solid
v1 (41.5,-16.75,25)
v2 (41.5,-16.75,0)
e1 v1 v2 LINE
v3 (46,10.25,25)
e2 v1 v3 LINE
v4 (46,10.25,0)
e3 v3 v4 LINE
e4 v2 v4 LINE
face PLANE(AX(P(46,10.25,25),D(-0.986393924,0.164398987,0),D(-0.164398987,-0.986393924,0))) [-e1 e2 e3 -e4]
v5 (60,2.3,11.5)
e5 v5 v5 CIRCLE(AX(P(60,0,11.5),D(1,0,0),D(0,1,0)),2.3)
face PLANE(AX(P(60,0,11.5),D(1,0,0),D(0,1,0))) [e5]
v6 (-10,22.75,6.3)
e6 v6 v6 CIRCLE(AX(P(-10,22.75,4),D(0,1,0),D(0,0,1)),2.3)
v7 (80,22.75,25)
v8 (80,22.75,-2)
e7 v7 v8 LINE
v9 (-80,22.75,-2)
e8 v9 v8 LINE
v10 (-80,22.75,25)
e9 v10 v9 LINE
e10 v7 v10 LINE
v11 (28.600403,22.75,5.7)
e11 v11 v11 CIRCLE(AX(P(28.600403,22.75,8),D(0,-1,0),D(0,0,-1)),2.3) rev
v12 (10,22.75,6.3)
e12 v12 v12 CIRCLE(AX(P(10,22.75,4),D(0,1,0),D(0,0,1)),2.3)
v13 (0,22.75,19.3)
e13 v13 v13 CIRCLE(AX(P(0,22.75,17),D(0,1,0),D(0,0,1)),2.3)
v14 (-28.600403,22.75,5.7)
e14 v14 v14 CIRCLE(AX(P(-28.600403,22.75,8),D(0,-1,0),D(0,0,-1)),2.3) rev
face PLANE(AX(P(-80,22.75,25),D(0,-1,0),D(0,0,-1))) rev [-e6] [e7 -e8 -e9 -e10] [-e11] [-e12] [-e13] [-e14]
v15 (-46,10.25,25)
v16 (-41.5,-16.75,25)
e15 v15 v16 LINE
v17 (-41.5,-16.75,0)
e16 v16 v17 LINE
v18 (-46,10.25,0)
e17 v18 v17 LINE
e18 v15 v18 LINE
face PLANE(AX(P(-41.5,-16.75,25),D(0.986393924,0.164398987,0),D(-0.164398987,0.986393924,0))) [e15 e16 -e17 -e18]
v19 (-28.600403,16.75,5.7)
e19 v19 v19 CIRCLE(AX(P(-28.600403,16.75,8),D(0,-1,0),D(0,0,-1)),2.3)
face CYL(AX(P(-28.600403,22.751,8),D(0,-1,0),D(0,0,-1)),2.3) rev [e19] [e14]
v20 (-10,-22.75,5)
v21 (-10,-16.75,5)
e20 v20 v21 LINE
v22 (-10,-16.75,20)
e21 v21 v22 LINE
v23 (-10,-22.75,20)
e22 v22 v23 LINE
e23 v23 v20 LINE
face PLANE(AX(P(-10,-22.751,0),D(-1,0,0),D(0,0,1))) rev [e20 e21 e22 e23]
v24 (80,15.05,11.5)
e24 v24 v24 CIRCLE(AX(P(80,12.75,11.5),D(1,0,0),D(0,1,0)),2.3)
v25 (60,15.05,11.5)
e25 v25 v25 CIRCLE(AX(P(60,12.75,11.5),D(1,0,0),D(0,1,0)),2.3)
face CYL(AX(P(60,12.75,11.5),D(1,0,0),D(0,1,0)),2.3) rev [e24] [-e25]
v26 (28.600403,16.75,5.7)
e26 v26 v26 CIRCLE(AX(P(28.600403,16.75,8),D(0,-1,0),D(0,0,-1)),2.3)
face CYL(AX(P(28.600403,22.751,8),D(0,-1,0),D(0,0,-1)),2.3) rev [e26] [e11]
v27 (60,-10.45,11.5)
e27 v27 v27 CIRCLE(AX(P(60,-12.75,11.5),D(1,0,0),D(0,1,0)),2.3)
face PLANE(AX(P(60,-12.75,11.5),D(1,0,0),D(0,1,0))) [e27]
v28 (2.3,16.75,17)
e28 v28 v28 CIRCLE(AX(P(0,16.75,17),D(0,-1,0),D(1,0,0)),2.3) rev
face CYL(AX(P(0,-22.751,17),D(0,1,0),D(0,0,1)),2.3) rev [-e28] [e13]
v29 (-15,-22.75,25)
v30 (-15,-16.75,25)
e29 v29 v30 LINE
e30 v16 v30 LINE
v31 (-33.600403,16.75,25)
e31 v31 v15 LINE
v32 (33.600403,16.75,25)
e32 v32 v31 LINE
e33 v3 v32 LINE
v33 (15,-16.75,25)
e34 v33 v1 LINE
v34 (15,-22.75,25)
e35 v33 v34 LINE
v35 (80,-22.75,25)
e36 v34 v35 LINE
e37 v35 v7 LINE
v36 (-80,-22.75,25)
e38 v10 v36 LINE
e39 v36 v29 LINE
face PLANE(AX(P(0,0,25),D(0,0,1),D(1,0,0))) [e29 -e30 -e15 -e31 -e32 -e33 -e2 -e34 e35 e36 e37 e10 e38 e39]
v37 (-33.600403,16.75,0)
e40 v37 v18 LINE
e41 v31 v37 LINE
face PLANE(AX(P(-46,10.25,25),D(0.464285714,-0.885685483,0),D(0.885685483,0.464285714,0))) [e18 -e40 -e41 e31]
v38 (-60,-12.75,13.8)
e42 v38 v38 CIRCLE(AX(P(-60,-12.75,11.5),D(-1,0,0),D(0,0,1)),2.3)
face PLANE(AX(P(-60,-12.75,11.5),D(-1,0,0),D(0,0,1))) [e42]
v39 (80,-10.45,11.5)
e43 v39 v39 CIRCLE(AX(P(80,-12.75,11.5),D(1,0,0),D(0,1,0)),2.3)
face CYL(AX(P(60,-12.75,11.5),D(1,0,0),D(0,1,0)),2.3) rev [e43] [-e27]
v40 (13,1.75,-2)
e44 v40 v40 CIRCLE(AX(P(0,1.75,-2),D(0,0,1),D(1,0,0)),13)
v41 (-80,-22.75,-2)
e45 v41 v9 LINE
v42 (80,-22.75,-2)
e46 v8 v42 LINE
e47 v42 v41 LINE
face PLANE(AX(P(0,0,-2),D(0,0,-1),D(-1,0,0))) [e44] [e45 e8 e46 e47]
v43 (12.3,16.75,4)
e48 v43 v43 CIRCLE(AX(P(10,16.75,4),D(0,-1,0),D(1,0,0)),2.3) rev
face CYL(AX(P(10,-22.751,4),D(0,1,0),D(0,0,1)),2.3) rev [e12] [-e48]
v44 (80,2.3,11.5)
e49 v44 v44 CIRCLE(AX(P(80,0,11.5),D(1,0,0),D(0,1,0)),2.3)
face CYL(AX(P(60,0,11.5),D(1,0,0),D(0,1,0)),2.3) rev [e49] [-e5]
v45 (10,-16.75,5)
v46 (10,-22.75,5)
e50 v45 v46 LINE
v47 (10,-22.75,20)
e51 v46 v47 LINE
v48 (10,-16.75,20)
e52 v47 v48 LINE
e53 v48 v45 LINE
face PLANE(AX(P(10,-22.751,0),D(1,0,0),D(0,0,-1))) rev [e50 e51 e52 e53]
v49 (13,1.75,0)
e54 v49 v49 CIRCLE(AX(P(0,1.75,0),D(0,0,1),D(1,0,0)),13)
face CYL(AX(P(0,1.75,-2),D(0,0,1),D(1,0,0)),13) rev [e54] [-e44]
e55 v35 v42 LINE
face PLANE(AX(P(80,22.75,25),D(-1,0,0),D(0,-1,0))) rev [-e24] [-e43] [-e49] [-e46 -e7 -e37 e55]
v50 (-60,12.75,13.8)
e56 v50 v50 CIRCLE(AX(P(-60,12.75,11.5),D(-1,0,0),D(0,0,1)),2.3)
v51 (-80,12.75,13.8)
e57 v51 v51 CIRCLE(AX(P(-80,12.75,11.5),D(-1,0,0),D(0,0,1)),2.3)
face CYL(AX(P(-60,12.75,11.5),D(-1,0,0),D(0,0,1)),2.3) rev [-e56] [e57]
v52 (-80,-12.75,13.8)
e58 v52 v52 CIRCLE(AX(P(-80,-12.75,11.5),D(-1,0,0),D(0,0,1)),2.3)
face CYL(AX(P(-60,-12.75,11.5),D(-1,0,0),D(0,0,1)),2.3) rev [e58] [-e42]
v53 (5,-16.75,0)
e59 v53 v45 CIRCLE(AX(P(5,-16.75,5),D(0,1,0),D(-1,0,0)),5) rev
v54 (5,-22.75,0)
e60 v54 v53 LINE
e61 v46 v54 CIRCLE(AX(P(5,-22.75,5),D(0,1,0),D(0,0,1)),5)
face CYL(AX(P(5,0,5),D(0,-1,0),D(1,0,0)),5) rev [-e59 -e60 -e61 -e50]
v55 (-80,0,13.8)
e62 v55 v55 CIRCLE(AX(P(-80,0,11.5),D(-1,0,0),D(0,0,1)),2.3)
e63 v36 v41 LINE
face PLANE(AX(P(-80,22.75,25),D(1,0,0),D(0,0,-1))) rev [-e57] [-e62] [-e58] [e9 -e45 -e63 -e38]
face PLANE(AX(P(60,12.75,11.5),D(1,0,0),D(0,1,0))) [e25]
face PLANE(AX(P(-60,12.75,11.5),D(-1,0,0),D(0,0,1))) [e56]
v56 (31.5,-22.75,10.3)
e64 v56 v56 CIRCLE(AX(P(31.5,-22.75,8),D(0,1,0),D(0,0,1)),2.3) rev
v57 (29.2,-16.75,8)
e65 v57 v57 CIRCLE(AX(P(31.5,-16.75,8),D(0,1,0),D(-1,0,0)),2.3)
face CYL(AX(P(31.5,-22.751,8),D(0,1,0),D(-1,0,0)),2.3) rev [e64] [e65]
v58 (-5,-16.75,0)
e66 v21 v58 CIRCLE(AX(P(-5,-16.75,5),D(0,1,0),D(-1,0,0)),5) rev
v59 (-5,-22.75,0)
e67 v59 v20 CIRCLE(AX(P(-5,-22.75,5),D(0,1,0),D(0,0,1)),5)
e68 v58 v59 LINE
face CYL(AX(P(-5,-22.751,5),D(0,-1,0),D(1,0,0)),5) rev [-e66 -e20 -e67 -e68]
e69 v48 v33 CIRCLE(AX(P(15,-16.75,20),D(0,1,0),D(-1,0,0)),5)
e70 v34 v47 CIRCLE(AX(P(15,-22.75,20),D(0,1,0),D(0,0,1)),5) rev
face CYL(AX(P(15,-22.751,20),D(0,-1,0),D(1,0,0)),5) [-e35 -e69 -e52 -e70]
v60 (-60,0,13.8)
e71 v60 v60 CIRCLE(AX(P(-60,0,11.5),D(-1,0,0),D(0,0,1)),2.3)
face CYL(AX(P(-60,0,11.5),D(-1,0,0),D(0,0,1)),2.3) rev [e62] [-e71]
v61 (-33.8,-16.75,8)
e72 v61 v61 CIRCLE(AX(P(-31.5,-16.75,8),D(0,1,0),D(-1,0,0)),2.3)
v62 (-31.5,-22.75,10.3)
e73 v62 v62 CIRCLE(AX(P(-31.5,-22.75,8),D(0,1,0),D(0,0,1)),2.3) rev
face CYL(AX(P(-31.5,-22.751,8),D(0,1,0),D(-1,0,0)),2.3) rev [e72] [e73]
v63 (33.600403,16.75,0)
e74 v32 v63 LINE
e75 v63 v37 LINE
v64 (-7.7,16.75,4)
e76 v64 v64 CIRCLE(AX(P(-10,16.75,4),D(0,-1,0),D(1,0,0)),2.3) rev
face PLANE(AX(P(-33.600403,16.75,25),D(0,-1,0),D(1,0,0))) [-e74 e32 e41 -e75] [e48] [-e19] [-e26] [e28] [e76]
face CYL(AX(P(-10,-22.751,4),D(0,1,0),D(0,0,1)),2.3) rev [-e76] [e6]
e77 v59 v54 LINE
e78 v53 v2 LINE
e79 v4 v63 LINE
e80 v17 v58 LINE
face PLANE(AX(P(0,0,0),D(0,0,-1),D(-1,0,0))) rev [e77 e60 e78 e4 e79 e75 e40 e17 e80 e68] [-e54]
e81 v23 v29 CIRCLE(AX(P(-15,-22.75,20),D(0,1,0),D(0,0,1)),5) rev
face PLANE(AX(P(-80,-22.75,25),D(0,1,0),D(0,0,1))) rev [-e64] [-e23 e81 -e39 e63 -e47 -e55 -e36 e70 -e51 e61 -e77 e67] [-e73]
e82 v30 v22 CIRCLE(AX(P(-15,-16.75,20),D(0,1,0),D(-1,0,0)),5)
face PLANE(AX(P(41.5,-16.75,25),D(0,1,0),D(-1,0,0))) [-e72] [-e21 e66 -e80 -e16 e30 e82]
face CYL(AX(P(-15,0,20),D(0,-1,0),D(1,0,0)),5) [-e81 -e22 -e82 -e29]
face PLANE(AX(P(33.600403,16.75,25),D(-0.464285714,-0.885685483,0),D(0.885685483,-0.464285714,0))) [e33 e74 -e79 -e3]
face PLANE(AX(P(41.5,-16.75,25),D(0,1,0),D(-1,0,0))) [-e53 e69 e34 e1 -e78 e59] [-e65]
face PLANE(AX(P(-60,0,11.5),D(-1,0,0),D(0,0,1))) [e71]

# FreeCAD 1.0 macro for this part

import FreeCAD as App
import Part
import Sketcher
Q = App.Units.Quantity


def edges_at(feature, points):
    """Names of the edges that pass closest to the given points."""
    edges = feature.Shape.Edges
    near = lambda p: min(range(len(edges)), key=lambda i: edges[i].distToShape(Part.Vertex(*p))[0])
    return sorted({f"Edge{near(p) + 1}" for p in points})


def add_polygon(sketch, points):
    """Adds a closed chain of lines whose ends are joined by coincident constraints."""
    first, n = sketch.GeometryCount, len(points)
    for a, b in zip(points, points[1:] + points[:1]):
        sketch.addGeometry(Part.LineSegment(App.Vector(*a, 0), App.Vector(*b, 0)), False)
    for i in range(n):
        sketch.addConstraint(Sketcher.Constraint("Coincident", first + i, 2, first + (i + 1) % n, 1))

doc = App.newDocument("Part")
body = doc.addObject("PartDesign::Body", "Body")

# Sketch on XY plane
sketch1 = body.newObject("Sketcher::SketchObject", "Sketch")
sketch1.AttachmentSupport = (doc.getObject("XY_Plane"), [""])
sketch1.MapMode = "FlatFace"
add_polygon(sketch1, [(-80, 23), (-80, -23), (80, -23), (80, 23)])  # lines 0-3
add_polygon(sketch1, [(-46, 10), (-34, 17), (34, 17), (46, 10), (42, -17), (-42, -17)])  # lines 4-9
sketch1.addConstraint([
    Sketcher.Constraint("Vertical", 0),
    Sketcher.Constraint("Horizontal", 1),
    Sketcher.Constraint("Vertical", 2),
    Sketcher.Constraint("Horizontal", 3),
    Sketcher.Constraint("Horizontal", 5),
    Sketcher.Constraint("Horizontal", 8),
    Sketcher.Constraint("Symmetric", 0, 2, 2, 2, -1, 1),
    Sketcher.Constraint("Symmetric", 6, 2, 9, 2, -2),
    Sketcher.Constraint("Equal", 4, 6),
    Sketcher.Constraint("Equal", 7, 9),
    Sketcher.Constraint("DistanceX", 1, 1, 1, 2, Q("160 mm")),
    Sketcher.Constraint("DistanceX", 8, 2, 8, 1, Q("83 mm")),
    Sketcher.Constraint("Distance", 4, Q("14 mm")),
    Sketcher.Constraint("DistanceY", 0, 2, 0, 1, Q("45.5 mm")),
    Sketcher.Constraint("DistanceX", -1, 1, 6, 2, Q("46 mm")),
    Sketcher.Constraint("DistanceY", 4, 2, 3, 2, Q("6 mm")),
    Sketcher.Constraint("DistanceY", 1, 2, 6, 2, Q("33 mm")),
    Sketcher.Constraint("DistanceY", 7, 2, 6, 2, Q("27 mm")),
])
pad1 = body.newObject("PartDesign::Pad", "Pad")
pad1.Profile = sketch1
pad1.Length = 25

# Sketch on XY plane
sketch2 = body.newObject("Sketcher::SketchObject", "Sketch001")
sketch2.AttachmentSupport = (doc.getObject("XY_Plane"), [""])
sketch2.MapMode = "FlatFace"
add_polygon(sketch2, [(80, 23), (80, -23), (-80, -23), (-80, 23)])  # lines 0-3
sketch2.addConstraint([
    Sketcher.Constraint("Vertical", 0),
    Sketcher.Constraint("Horizontal", 1),
    Sketcher.Constraint("Vertical", 2),
    Sketcher.Constraint("Horizontal", 3),
    Sketcher.Constraint("Symmetric", 0, 2, 2, 2, -1, 1),
    Sketcher.Constraint("DistanceX", 1, 2, 1, 1, Q("160 mm")),
    Sketcher.Constraint("DistanceY", 0, 2, 0, 1, Q("45.5 mm")),
])
pad2 = body.newObject("PartDesign::Pad", "Pad001")
pad2.Profile = sketch2
pad2.Length = 2
pad2.Reversed = True

# Sketch on XY plane
sketch3 = body.newObject("Sketcher::SketchObject", "Sketch002")
sketch3.AttachmentSupport = (doc.getObject("XY_Plane"), [""])
sketch3.MapMode = "FlatFace"
sketch3.addGeometry(Part.Circle(App.Vector(0, 2, 0), App.Vector(0, 0, 1), 13), False)
sketch3.addConstraint([
    Sketcher.Constraint("PointOnObject", 0, 3, -2),
    Sketcher.Constraint("Diameter", 0, Q("26 mm")),
    Sketcher.Constraint("DistanceY", -1, 1, 0, 3, Q("1.75 mm")),
])
pocket1 = body.newObject("PartDesign::Pocket", "Pocket")
pocket1.Profile = sketch3
pocket1.Length = 2

# Sketch on XZ plane
sketch4 = body.newObject("Sketcher::SketchObject", "Sketch003")
sketch4.AttachmentSupport = (doc.getObject("XZ_Plane"), [""])
sketch4.MapMode = "FlatFace"
sketch4.AttachmentOffset = App.Placement(App.Vector(0, 0, 16.75), App.Rotation())
add_polygon(sketch4, [(-10, 0), (-10, 25), (10, 25), (10, 0)])  # lines 0-3
sketch4.addConstraint([
    Sketcher.Constraint("Vertical", 0),
    Sketcher.Constraint("Horizontal", 1),
    Sketcher.Constraint("Vertical", 2),
    Sketcher.Constraint("Horizontal", 3),
    Sketcher.Constraint("Symmetric", 2, 2, 3, 2, -1, 1),
    Sketcher.Constraint("DistanceX", 1, 1, 1, 2, Q("20 mm")),
    Sketcher.Constraint("DistanceY", 0, 1, 0, 2, Q("25 mm")),
])
pocket2 = body.newObject("PartDesign::Pocket", "Pocket001")
pocket2.Profile = sketch4
pocket2.Type = "UpToFirst"
pocket2.Reversed = True
doc.recompute()

fillet = body.newObject("PartDesign::Fillet", "Fillet")
fillet.Base = (pocket2, edges_at(pocket2, [(-10, -19.75, 0), (10, -19.75, 0)]))
fillet.Radius = 5
doc.recompute()

fillet2 = body.newObject("PartDesign::Fillet", "Fillet001")
fillet2.Base = (fillet, edges_at(fillet, [(-10, -19.75, 25), (10, -19.75, 25)]))
fillet2.Radius = 5

# Sketch on XZ plane
sketch5 = body.newObject("Sketcher::SketchObject", "Sketch004")
sketch5.AttachmentSupport = (doc.getObject("XZ_Plane"), [""])
sketch5.MapMode = "FlatFace"
sketch5.AttachmentOffset = App.Placement(App.Vector(0, 0, 16.75), App.Rotation())
sketch5.addGeometry(Part.Circle(App.Vector(-31.5, 8, 0), App.Vector(0, 0, 1), 2.3), False)
sketch5.addConstraint([
    Sketcher.Constraint("Diameter", 0, Q("4.6 mm")),
    Sketcher.Constraint("DistanceY", -1, 1, 0, 3, Q("8 mm")),
    Sketcher.Constraint("DistanceX", 0, 3, -1, 1, Q("31.5 mm")),
])
pocket3 = body.newObject("PartDesign::Pocket", "Pocket002")
pocket3.Profile = sketch5
pocket3.Type = "UpToFirst"
pocket3.Reversed = True

# Sketch on XZ plane
sketch6 = body.newObject("Sketcher::SketchObject", "Sketch005")
sketch6.AttachmentSupport = (doc.getObject("XZ_Plane"), [""])
sketch6.MapMode = "FlatFace"
sketch6.AttachmentOffset = App.Placement(App.Vector(0, 0, 16.75), App.Rotation())
sketch6.addGeometry(Part.Circle(App.Vector(31.5, 8, 0), App.Vector(0, 0, 1), 2.3), False)
sketch6.addConstraint([
    Sketcher.Constraint("Diameter", 0, Q("4.6 mm")),
    Sketcher.Constraint("DistanceY", -1, 1, 0, 3, Q("8 mm")),
    Sketcher.Constraint("DistanceX", -1, 1, 0, 3, Q("31.5 mm")),
])
pocket4 = body.newObject("PartDesign::Pocket", "Pocket003")
pocket4.Profile = sketch6
pocket4.Type = "UpToFirst"
pocket4.Reversed = True

# Sketch on XZ plane
sketch7 = body.newObject("Sketcher::SketchObject", "Sketch006")
sketch7.AttachmentSupport = (doc.getObject("XZ_Plane"), [""])
sketch7.MapMode = "FlatFace"
sketch7.AttachmentOffset = App.Placement(App.Vector(0, 0, -16.75), App.Rotation())
sketch7.addGeometry(Part.Circle(App.Vector(-28.6, 8, 0), App.Vector(0, 0, 1), 2.3), False)
sketch7.addConstraint([
    Sketcher.Constraint("Diameter", 0, Q("4.6 mm")),
    Sketcher.Constraint("DistanceY", -1, 1, 0, 3, Q("8 mm")),
    Sketcher.Constraint("DistanceX", 0, 3, -1, 1, Q("28.600403 mm")),
])
pocket5 = body.newObject("PartDesign::Pocket", "Pocket004")
pocket5.Profile = sketch7
pocket5.Type = "UpToFirst"

# Sketch on XZ plane
sketch8 = body.newObject("Sketcher::SketchObject", "Sketch007")
sketch8.AttachmentSupport = (doc.getObject("XZ_Plane"), [""])
sketch8.MapMode = "FlatFace"
sketch8.AttachmentOffset = App.Placement(App.Vector(0, 0, -16.75), App.Rotation())
sketch8.addGeometry(Part.Circle(App.Vector(28.6, 8, 0), App.Vector(0, 0, 1), 2.3), False)
sketch8.addConstraint([
    Sketcher.Constraint("Diameter", 0, Q("4.6 mm")),
    Sketcher.Constraint("DistanceY", -1, 1, 0, 3, Q("8 mm")),
    Sketcher.Constraint("DistanceX", -1, 1, 0, 3, Q("28.600403 mm")),
])
pocket6 = body.newObject("PartDesign::Pocket", "Pocket005")
pocket6.Profile = sketch8
pocket6.Type = "UpToFirst"

# Sketch on XZ plane
sketch9 = body.newObject("Sketcher::SketchObject", "Sketch008")
sketch9.AttachmentSupport = (doc.getObject("XZ_Plane"), [""])
sketch9.MapMode = "FlatFace"
sketch9.AttachmentOffset = App.Placement(App.Vector(0, 0, -22.75), App.Rotation())
sketch9.addGeometry(Part.Circle(App.Vector(-10, 4, 0), App.Vector(0, 0, 1), 2.3), False)
sketch9.addConstraint([
    Sketcher.Constraint("Diameter", 0, Q("4.6 mm")),
    Sketcher.Constraint("DistanceX", 0, 3, -1, 1, Q("10 mm")),
    Sketcher.Constraint("DistanceY", -1, 1, 0, 3, Q("4 mm")),
])
pocket7 = body.newObject("PartDesign::Pocket", "Pocket006")
pocket7.Profile = sketch9
pocket7.Type = "UpToFirst"
pocket7.Reversed = True

# Sketch on XZ plane
sketch10 = body.newObject("Sketcher::SketchObject", "Sketch009")
sketch10.AttachmentSupport = (doc.getObject("XZ_Plane"), [""])
sketch10.MapMode = "FlatFace"
sketch10.AttachmentOffset = App.Placement(App.Vector(0, 0, -22.75), App.Rotation())
sketch10.addGeometry(Part.Circle(App.Vector(10, 4, 0), App.Vector(0, 0, 1), 2.3), False)
sketch10.addConstraint([
    Sketcher.Constraint("Diameter", 0, Q("4.6 mm")),
    Sketcher.Constraint("DistanceX", -1, 1, 0, 3, Q("10 mm")),
    Sketcher.Constraint("DistanceY", -1, 1, 0, 3, Q("4 mm")),
])
pocket8 = body.newObject("PartDesign::Pocket", "Pocket007")
pocket8.Profile = sketch10
pocket8.Type = "UpToFirst"
pocket8.Reversed = True

# Sketch on XZ plane
sketch11 = body.newObject("Sketcher::SketchObject", "Sketch010")
sketch11.AttachmentSupport = (doc.getObject("XZ_Plane"), [""])
sketch11.MapMode = "FlatFace"
sketch11.AttachmentOffset = App.Placement(App.Vector(0, 0, -22.75), App.Rotation())
sketch11.addGeometry(Part.Circle(App.Vector(0, 17, 0), App.Vector(0, 0, 1), 2.3), False)
sketch11.addConstraint([
    Sketcher.Constraint("PointOnObject", 0, 3, -2),
    Sketcher.Constraint("Diameter", 0, Q("4.6 mm")),
    Sketcher.Constraint("DistanceY", -1, 1, 0, 3, Q("17 mm")),
])
pocket9 = body.newObject("PartDesign::Pocket", "Pocket008")
pocket9.Profile = sketch11
pocket9.Type = "UpToFirst"
pocket9.Reversed = True

# Sketch on YZ plane
sketch12 = body.newObject("Sketcher::SketchObject", "Sketch011")
sketch12.AttachmentSupport = (doc.getObject("YZ_Plane"), [""])
sketch12.MapMode = "FlatFace"
sketch12.AttachmentOffset = App.Placement(App.Vector(0, 0, -80), App.Rotation())
sketch12.addGeometry([
    Part.Circle(App.Vector(0, 11.5, 0), App.Vector(0, 0, 1), 2.3),
    Part.Circle(App.Vector(-12.8, 11.5, 0), App.Vector(0, 0, 1), 2.3),
    Part.Circle(App.Vector(12.8, 11.5, 0), App.Vector(0, 0, 1), 2.3),
], False)
sketch12.addConstraint([
    Sketcher.Constraint("Equal", 0, 1),
    Sketcher.Constraint("Equal", 1, 2),
    Sketcher.Constraint("Symmetric", 1, 3, 2, 3, -2),
    Sketcher.Constraint("PointOnObject", 0, 3, -2),
    Sketcher.Constraint("Horizontal", 0, 3, 1, 3),
    Sketcher.Constraint("Diameter", 0, Q("4.6 mm")),
    Sketcher.Constraint("DistanceY", -1, 1, 0, 3, Q("11.5 mm")),
    Sketcher.Constraint("DistanceX", 1, 3, 2, 3, Q("25.5 mm")),
])
pocket10 = body.newObject("PartDesign::Pocket", "Pocket009")
pocket10.Profile = sketch12
pocket10.Length = 20
pocket10.Reversed = True

# Sketch on YZ plane
sketch13 = body.newObject("Sketcher::SketchObject", "Sketch012")
sketch13.AttachmentSupport = (doc.getObject("YZ_Plane"), [""])
sketch13.MapMode = "FlatFace"
sketch13.AttachmentOffset = App.Placement(App.Vector(0, 0, 80), App.Rotation())
sketch13.addGeometry([
    Part.Circle(App.Vector(12.8, 11.5, 0), App.Vector(0, 0, 1), 2.3),
    Part.Circle(App.Vector(0, 11.5, 0), App.Vector(0, 0, 1), 2.3),
    Part.Circle(App.Vector(-12.8, 11.5, 0), App.Vector(0, 0, 1), 2.3),
], False)
sketch13.addConstraint([
    Sketcher.Constraint("Equal", 0, 1),
    Sketcher.Constraint("Equal", 1, 2),
    Sketcher.Constraint("Symmetric", 0, 3, 2, 3, -2),
    Sketcher.Constraint("PointOnObject", 1, 3, -2),
    Sketcher.Constraint("Horizontal", 0, 3, 1, 3),
    Sketcher.Constraint("Diameter", 0, Q("4.6 mm")),
    Sketcher.Constraint("DistanceY", -1, 1, 0, 3, Q("11.5 mm")),
    Sketcher.Constraint("DistanceX", 2, 3, 0, 3, Q("25.5 mm")),
])
pocket11 = body.newObject("PartDesign::Pocket", "Pocket010")
pocket11.Profile = sketch13
pocket11.Length = 20

doc.recompute()
